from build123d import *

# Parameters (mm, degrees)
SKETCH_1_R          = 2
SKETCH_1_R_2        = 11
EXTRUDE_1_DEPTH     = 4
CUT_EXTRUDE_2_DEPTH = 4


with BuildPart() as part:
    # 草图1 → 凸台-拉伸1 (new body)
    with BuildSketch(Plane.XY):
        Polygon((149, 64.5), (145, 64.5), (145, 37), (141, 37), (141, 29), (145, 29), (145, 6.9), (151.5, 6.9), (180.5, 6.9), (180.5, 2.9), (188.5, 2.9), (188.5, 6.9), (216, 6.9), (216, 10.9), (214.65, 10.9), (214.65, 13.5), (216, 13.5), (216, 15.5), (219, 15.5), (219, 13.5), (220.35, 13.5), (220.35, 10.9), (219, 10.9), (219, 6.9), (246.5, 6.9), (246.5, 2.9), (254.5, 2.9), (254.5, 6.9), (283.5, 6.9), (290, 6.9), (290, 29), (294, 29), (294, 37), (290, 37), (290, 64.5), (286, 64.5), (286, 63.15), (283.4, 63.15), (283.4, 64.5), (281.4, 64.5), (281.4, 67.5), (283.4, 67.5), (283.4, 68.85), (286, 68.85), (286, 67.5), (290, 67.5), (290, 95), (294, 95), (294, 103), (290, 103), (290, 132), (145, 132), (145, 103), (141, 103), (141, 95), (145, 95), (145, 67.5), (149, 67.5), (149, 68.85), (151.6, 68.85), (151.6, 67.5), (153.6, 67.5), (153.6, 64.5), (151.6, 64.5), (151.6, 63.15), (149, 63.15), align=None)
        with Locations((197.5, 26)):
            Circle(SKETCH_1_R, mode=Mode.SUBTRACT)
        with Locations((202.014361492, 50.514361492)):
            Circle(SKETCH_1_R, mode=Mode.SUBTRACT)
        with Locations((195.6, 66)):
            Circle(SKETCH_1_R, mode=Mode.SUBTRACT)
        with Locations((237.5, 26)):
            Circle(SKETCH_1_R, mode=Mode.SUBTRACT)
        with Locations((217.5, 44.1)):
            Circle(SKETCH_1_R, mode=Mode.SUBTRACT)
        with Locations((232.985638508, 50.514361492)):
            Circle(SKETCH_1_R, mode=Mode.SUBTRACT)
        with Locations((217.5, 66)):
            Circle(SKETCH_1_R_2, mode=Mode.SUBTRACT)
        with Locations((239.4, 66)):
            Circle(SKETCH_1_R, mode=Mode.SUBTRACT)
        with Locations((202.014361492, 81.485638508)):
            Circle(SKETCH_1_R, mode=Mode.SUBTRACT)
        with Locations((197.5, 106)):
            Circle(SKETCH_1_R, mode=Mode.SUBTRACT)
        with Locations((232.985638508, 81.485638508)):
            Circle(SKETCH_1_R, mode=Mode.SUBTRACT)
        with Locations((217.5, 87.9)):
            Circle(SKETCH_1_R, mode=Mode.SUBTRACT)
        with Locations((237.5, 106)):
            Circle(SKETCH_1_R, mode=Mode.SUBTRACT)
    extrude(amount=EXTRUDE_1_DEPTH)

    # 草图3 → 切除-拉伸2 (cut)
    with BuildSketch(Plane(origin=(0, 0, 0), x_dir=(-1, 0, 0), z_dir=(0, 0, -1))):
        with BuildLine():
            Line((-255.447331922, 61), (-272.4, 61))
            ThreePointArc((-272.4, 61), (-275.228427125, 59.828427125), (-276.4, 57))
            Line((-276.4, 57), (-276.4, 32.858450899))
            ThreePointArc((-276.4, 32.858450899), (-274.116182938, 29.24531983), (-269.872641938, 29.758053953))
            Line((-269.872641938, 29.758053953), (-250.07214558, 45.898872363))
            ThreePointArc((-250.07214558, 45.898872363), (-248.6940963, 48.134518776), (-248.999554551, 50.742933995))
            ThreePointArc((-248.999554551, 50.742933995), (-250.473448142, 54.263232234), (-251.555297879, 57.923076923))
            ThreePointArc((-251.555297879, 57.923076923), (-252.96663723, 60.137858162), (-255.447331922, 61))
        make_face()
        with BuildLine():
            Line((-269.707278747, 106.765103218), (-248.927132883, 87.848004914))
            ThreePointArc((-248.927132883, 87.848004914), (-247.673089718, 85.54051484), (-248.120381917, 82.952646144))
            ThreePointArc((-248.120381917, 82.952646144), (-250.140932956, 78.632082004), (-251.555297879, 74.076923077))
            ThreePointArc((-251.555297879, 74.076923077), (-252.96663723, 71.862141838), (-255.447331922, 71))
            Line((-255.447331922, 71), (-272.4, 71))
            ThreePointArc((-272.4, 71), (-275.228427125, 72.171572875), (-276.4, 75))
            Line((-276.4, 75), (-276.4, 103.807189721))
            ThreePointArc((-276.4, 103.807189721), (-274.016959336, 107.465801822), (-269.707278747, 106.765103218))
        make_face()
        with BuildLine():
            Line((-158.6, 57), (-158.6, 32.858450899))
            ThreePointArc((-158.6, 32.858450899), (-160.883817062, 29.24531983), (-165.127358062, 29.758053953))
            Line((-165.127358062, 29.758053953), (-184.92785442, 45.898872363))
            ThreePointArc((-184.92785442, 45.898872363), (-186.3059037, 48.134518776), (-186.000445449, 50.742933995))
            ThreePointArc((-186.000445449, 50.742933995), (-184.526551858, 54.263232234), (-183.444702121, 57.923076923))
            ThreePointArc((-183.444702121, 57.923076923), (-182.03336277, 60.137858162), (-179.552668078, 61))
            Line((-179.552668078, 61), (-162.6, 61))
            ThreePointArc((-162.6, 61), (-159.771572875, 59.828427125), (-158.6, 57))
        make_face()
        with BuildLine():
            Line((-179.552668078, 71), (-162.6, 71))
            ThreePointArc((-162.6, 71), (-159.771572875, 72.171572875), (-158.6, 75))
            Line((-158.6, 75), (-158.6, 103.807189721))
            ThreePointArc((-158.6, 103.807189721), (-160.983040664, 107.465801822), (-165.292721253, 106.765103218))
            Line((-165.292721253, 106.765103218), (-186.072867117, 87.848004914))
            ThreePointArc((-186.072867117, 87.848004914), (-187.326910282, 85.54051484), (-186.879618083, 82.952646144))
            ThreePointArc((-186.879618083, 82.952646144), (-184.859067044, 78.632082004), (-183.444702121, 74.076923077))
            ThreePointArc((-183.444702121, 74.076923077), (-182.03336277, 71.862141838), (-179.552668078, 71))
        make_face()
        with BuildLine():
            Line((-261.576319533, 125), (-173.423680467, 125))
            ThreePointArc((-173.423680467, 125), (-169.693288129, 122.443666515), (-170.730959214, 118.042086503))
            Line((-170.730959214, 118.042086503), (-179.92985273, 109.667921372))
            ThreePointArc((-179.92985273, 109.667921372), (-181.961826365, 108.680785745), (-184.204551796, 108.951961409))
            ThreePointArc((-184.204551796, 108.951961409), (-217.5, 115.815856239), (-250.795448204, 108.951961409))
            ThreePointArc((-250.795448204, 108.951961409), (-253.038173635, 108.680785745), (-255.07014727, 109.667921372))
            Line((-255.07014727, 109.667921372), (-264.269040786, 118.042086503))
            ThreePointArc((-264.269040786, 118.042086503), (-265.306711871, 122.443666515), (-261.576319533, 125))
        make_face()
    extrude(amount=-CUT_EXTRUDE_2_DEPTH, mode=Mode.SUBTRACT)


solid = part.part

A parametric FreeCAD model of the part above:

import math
import FreeCAD as App
import Part
import Sketcher
Q = App.Units.Quantity

doc = App.newDocument("Part")
body = doc.addObject("PartDesign::Body", "Body")

# Sketch on XY plane
sketch1 = doc.addObject("Sketcher::SketchObject", "Sketch")
body.addObject(sketch1)
sketch1.AttachmentSupport = (doc.XY_Plane, [""])
sketch1.MapMode = "FlatFace"
sketch1.addGeometry([
    Part.LineSegment(App.Vector(149, 64.5, 0), App.Vector(145, 64.5, 0)),  # 0
    Part.LineSegment(App.Vector(145, 64.5, 0), App.Vector(145, 37, 0)),  # 1
    Part.LineSegment(App.Vector(145, 37, 0), App.Vector(141, 37, 0)),  # 2
    Part.LineSegment(App.Vector(141, 37, 0), App.Vector(141, 29, 0)),  # 3
    Part.LineSegment(App.Vector(141, 29, 0), App.Vector(145, 29, 0)),  # 4
    Part.LineSegment(App.Vector(145, 29, 0), App.Vector(145, 6.9, 0)),  # 5
    Part.LineSegment(App.Vector(145, 6.9, 0), App.Vector(180.5, 6.9, 0)),  # 6
    Part.LineSegment(App.Vector(180.5, 6.9, 0), App.Vector(180.5, 2.9, 0)),  # 7
    Part.LineSegment(App.Vector(180.5, 2.9, 0), App.Vector(188.5, 2.9, 0)),  # 8
    Part.LineSegment(App.Vector(188.5, 2.9, 0), App.Vector(188.5, 6.9, 0)),  # 9
    Part.LineSegment(App.Vector(188.5, 6.9, 0), App.Vector(216, 6.9, 0)),  # 10
    Part.LineSegment(App.Vector(216, 6.9, 0), App.Vector(216, 10.9, 0)),  # 11
    Part.LineSegment(App.Vector(216, 10.9, 0), App.Vector(214.7, 10.9, 0)),  # 12
    Part.LineSegment(App.Vector(214.7, 10.9, 0), App.Vector(214.7, 13.5, 0)),  # 13
    Part.LineSegment(App.Vector(214.7, 13.5, 0), App.Vector(216, 13.5, 0)),  # 14
    Part.LineSegment(App.Vector(216, 13.5, 0), App.Vector(216, 15.5, 0)),  # 15
    Part.LineSegment(App.Vector(216, 15.5, 0), App.Vector(219, 15.5, 0)),  # 16
    Part.LineSegment(App.Vector(219, 15.5, 0), App.Vector(219, 13.5, 0)),  # 17
    Part.LineSegment(App.Vector(219, 13.5, 0), App.Vector(220.3, 13.5, 0)),  # 18
    Part.LineSegment(App.Vector(220.3, 13.5, 0), App.Vector(220.3, 10.9, 0)),  # 19
    Part.LineSegment(App.Vector(220.3, 10.9, 0), App.Vector(219, 10.9, 0)),  # 20
    Part.LineSegment(App.Vector(219, 10.9, 0), App.Vector(219, 6.9, 0)),  # 21
    Part.LineSegment(App.Vector(219, 6.9, 0), App.Vector(246.5, 6.9, 0)),  # 22
    Part.LineSegment(App.Vector(246.5, 6.9, 0), App.Vector(246.5, 2.9, 0)),  # 23
    Part.LineSegment(App.Vector(246.5, 2.9, 0), App.Vector(254.5, 2.9, 0)),  # 24
    Part.LineSegment(App.Vector(254.5, 2.9, 0), App.Vector(254.5, 6.9, 0)),  # 25
    Part.LineSegment(App.Vector(254.5, 6.9, 0), App.Vector(290, 6.9, 0)),  # 26
    Part.LineSegment(App.Vector(290, 6.9, 0), App.Vector(290, 29, 0)),  # 27
    Part.LineSegment(App.Vector(290, 29, 0), App.Vector(294, 29, 0)),  # 28
    Part.LineSegment(App.Vector(294, 29, 0), App.Vector(294, 37, 0)),  # 29
    Part.LineSegment(App.Vector(294, 37, 0), App.Vector(290, 37, 0)),  # 30
    Part.LineSegment(App.Vector(290, 37, 0), App.Vector(290, 64.5, 0)),  # 31
    Part.LineSegment(App.Vector(290, 64.5, 0), App.Vector(286, 64.5, 0)),  # 32
    Part.LineSegment(App.Vector(286, 64.5, 0), App.Vector(286, 63.1, 0)),  # 33
    Part.LineSegment(App.Vector(286, 63.1, 0), App.Vector(283.4, 63.1, 0)),  # 34
    Part.LineSegment(App.Vector(283.4, 63.1, 0), App.Vector(283.4, 64.5, 0)),  # 35
    Part.LineSegment(App.Vector(283.4, 64.5, 0), App.Vector(281.4, 64.5, 0)),  # 36
    Part.LineSegment(App.Vector(281.4, 64.5, 0), App.Vector(281.4, 67.5, 0)),  # 37
    Part.LineSegment(App.Vector(281.4, 67.5, 0), App.Vector(283.4, 67.5, 0)),  # 38
    Part.LineSegment(App.Vector(283.4, 67.5, 0), App.Vector(283.4, 68.8, 0)),  # 39
    Part.LineSegment(App.Vector(283.4, 68.8, 0), App.Vector(286, 68.8, 0)),  # 40
    Part.LineSegment(App.Vector(286, 68.8, 0), App.Vector(286, 67.5, 0)),  # 41
    Part.LineSegment(App.Vector(286, 67.5, 0), App.Vector(290, 67.5, 0)),  # 42
    Part.LineSegment(App.Vector(290, 67.5, 0), App.Vector(290, 95, 0)),  # 43
    Part.LineSegment(App.Vector(290, 95, 0), App.Vector(294, 95, 0)),  # 44
    Part.LineSegment(App.Vector(294, 95, 0), App.Vector(294, 103, 0)),  # 45
    Part.LineSegment(App.Vector(294, 103, 0), App.Vector(290, 103, 0)),  # 46
    Part.LineSegment(App.Vector(290, 103, 0), App.Vector(290, 132, 0)),  # 47
    Part.LineSegment(App.Vector(290, 132, 0), App.Vector(145, 132, 0)),  # 48
    Part.LineSegment(App.Vector(145, 132, 0), App.Vector(145, 103, 0)),  # 49
    Part.LineSegment(App.Vector(145, 103, 0), App.Vector(141, 103, 0)),  # 50
    Part.LineSegment(App.Vector(141, 103, 0), App.Vector(141, 95, 0)),  # 51
    Part.LineSegment(App.Vector(141, 95, 0), App.Vector(145, 95, 0)),  # 52
    Part.LineSegment(App.Vector(145, 95, 0), App.Vector(145, 67.5, 0)),  # 53
    Part.LineSegment(App.Vector(145, 67.5, 0), App.Vector(149, 67.5, 0)),  # 54
    Part.LineSegment(App.Vector(149, 67.5, 0), App.Vector(149, 68.8, 0)),  # 55
    Part.LineSegment(App.Vector(149, 68.8, 0), App.Vector(151.6, 68.8, 0)),  # 56
    Part.LineSegment(App.Vector(151.6, 68.8, 0), App.Vector(151.6, 67.5, 0)),  # 57
    Part.LineSegment(App.Vector(151.6, 67.5, 0), App.Vector(153.6, 67.5, 0)),  # 58
    Part.LineSegment(App.Vector(153.6, 67.5, 0), App.Vector(153.6, 64.5, 0)),  # 59
    Part.LineSegment(App.Vector(153.6, 64.5, 0), App.Vector(151.6, 64.5, 0)),  # 60
    Part.LineSegment(App.Vector(151.6, 64.5, 0), App.Vector(151.6, 63.1, 0)),  # 61
    Part.LineSegment(App.Vector(151.6, 63.1, 0), App.Vector(149, 63.1, 0)),  # 62
    Part.LineSegment(App.Vector(149, 63.1, 0), App.Vector(149, 64.5, 0)),  # 63
    Part.Circle(App.Vector(197.5, 26, 0), App.Vector(0, 0, 1), 2),  # 64
    Part.Circle(App.Vector(202, 50.5, 0), App.Vector(0, 0, 1), 2),  # 65
    Part.Circle(App.Vector(217.5, 44.1, 0), App.Vector(0, 0, 1), 2),  # 66
    Part.Circle(App.Vector(237.5, 26, 0), App.Vector(0, 0, 1), 2),  # 67
    Part.Circle(App.Vector(233, 50.5, 0), App.Vector(0, 0, 1), 2),  # 68
    Part.Circle(App.Vector(195.6, 66, 0), App.Vector(0, 0, 1), 2),  # 69
    Part.Circle(App.Vector(202, 81.5, 0), App.Vector(0, 0, 1), 2),  # 70
    Part.Circle(App.Vector(197.5, 106, 0), App.Vector(0, 0, 1), 2),  # 71
    Part.Circle(App.Vector(217.5, 66, 0), App.Vector(0, 0, 1), 11),  # 72
    Part.Circle(App.Vector(239.4, 66, 0), App.Vector(0, 0, 1), 2),  # 73
    Part.Circle(App.Vector(233, 81.5, 0), App.Vector(0, 0, 1), 2),  # 74
    Part.Circle(App.Vector(217.5, 87.9, 0), App.Vector(0, 0, 1), 2),  # 75
    Part.Circle(App.Vector(237.5, 106, 0), App.Vector(0, 0, 1), 2),  # 76
], False)
sketch1.addConstraint([
    Sketcher.Constraint("Coincident", 0, 2, 1, 1),
    Sketcher.Constraint("Coincident", 1, 2, 2, 1),
    Sketcher.Constraint("Coincident", 2, 2, 3, 1),
    Sketcher.Constraint("Coincident", 3, 2, 4, 1),
    Sketcher.Constraint("Coincident", 4, 2, 5, 1),
    Sketcher.Constraint("Coincident", 5, 2, 6, 1),
    Sketcher.Constraint("Coincident", 6, 2, 7, 1),
    Sketcher.Constraint("Coincident", 7, 2, 8, 1),
    Sketcher.Constraint("Coincident", 8, 2, 9, 1),
    Sketcher.Constraint("Coincident", 9, 2, 10, 1),
    Sketcher.Constraint("Coincident", 10, 2, 11, 1),
    Sketcher.Constraint("Coincident", 11, 2, 12, 1),
    Sketcher.Constraint("Coincident", 12, 2, 13, 1),
    Sketcher.Constraint("Coincident", 13, 2, 14, 1),
    Sketcher.Constraint("Coincident", 14, 2, 15, 1),
    Sketcher.Constraint("Coincident", 15, 2, 16, 1),
    Sketcher.Constraint("Coincident", 16, 2, 17, 1),
    Sketcher.Constraint("Coincident", 17, 2, 18, 1),
    Sketcher.Constraint("Coincident", 18, 2, 19, 1),
    Sketcher.Constraint("Coincident", 19, 2, 20, 1),
    Sketcher.Constraint("Coincident", 20, 2, 21, 1),
    Sketcher.Constraint("Coincident", 21, 2, 22, 1),
    Sketcher.Constraint("Coincident", 22, 2, 23, 1),
    Sketcher.Constraint("Coincident", 23, 2, 24, 1),
    Sketcher.Constraint("Coincident", 24, 2, 25, 1),
    Sketcher.Constraint("Coincident", 25, 2, 26, 1),
    Sketcher.Constraint("Coincident", 26, 2, 27, 1),
    Sketcher.Constraint("Coincident", 27, 2, 28, 1),
    Sketcher.Constraint("Coincident", 28, 2, 29, 1),
    Sketcher.Constraint("Coincident", 29, 2, 30, 1),
    Sketcher.Constraint("Coincident", 30, 2, 31, 1),
    Sketcher.Constraint("Coincident", 31, 2, 32, 1),
    Sketcher.Constraint("Coincident", 32, 2, 33, 1),
    Sketcher.Constraint("Coincident", 33, 2, 34, 1),
    Sketcher.Constraint("Coincident", 34, 2, 35, 1),
    Sketcher.Constraint("Coincident", 35, 2, 36, 1),
    Sketcher.Constraint("Coincident", 36, 2, 37, 1),
    Sketcher.Constraint("Coincident", 37, 2, 38, 1),
    Sketcher.Constraint("Coincident", 38, 2, 39, 1),
    Sketcher.Constraint("Coincident", 39, 2, 40, 1),
    Sketcher.Constraint("Coincident", 40, 2, 41, 1),
    Sketcher.Constraint("Coincident", 41, 2, 42, 1),
    Sketcher.Constraint("Coincident", 42, 2, 43, 1),
    Sketcher.Constraint("Coincident", 43, 2, 44, 1),
    Sketcher.Constraint("Coincident", 44, 2, 45, 1),
    Sketcher.Constraint("Coincident", 45, 2, 46, 1),
    Sketcher.Constraint("Coincident", 46, 2, 47, 1),
    Sketcher.Constraint("Coincident", 47, 2, 48, 1),
    Sketcher.Constraint("Coincident", 48, 2, 49, 1),
    Sketcher.Constraint("Coincident", 49, 2, 50, 1),
    Sketcher.Constraint("Coincident", 50, 2, 51, 1),
    Sketcher.Constraint("Coincident", 51, 2, 52, 1),
    Sketcher.Constraint("Coincident", 52, 2, 53, 1),
    Sketcher.Constraint("Coincident", 53, 2, 54, 1),
    Sketcher.Constraint("Coincident", 54, 2, 55, 1),
    Sketcher.Constraint("Coincident", 55, 2, 56, 1),
    Sketcher.Constraint("Coincident", 56, 2, 57, 1),
    Sketcher.Constraint("Coincident", 57, 2, 58, 1),
    Sketcher.Constraint("Coincident", 58, 2, 59, 1),
    Sketcher.Constraint("Coincident", 59, 2, 60, 1),
    Sketcher.Constraint("Coincident", 60, 2, 61, 1),
    Sketcher.Constraint("Coincident", 61, 2, 62, 1),
    Sketcher.Constraint("Coincident", 62, 2, 63, 1),
    Sketcher.Constraint("Coincident", 63, 2, 0, 1),
    Sketcher.Constraint("Horizontal", 0),
    Sketcher.Constraint("Vertical", 1),
    Sketcher.Constraint("Horizontal", 2),
    Sketcher.Constraint("Vertical", 3),
    Sketcher.Constraint("Horizontal", 4),
    Sketcher.Constraint("Vertical", 5),
    Sketcher.Constraint("Horizontal", 6),
    Sketcher.Constraint("Vertical", 7),
    Sketcher.Constraint("Horizontal", 8),
    Sketcher.Constraint("Vertical", 9),
    Sketcher.Constraint("Horizontal", 10),
    Sketcher.Constraint("Vertical", 11),
    Sketcher.Constraint("Horizontal", 12),
    Sketcher.Constraint("Vertical", 13),
    Sketcher.Constraint("Horizontal", 14),
    Sketcher.Constraint("Vertical", 15),
    Sketcher.Constraint("Horizontal", 16),
    Sketcher.Constraint("Vertical", 17),
    Sketcher.Constraint("Horizontal", 18),
    Sketcher.Constraint("Vertical", 19),
    Sketcher.Constraint("Horizontal", 20),
    Sketcher.Constraint("Vertical", 21),
    Sketcher.Constraint("Horizontal", 22),
    Sketcher.Constraint("Vertical", 23),
    Sketcher.Constraint("Horizontal", 24),
    Sketcher.Constraint("Vertical", 25),
    Sketcher.Constraint("Horizontal", 26),
    Sketcher.Constraint("Vertical", 27),
    Sketcher.Constraint("Horizontal", 28),
    Sketcher.Constraint("Vertical", 29),
    Sketcher.Constraint("Horizontal", 30),
    Sketcher.Constraint("Vertical", 31),
    Sketcher.Constraint("Horizontal", 32),
    Sketcher.Constraint("Vertical", 33),
    Sketcher.Constraint("Horizontal", 34),
    Sketcher.Constraint("Vertical", 35),
    Sketcher.Constraint("Horizontal", 36),
    Sketcher.Constraint("Vertical", 37),
    Sketcher.Constraint("Horizontal", 38),
    Sketcher.Constraint("Vertical", 39),
    Sketcher.Constraint("Horizontal", 40),
    Sketcher.Constraint("Vertical", 41),
    Sketcher.Constraint("Horizontal", 42),
    Sketcher.Constraint("Vertical", 43),
    Sketcher.Constraint("Horizontal", 44),
    Sketcher.Constraint("Vertical", 45),
    Sketcher.Constraint("Horizontal", 46),
    Sketcher.Constraint("Vertical", 47),
    Sketcher.Constraint("Horizontal", 48),
    Sketcher.Constraint("Vertical", 49),
    Sketcher.Constraint("Horizontal", 50),
    Sketcher.Constraint("Vertical", 51),
    Sketcher.Constraint("Horizontal", 52),
    Sketcher.Constraint("Vertical", 53),
    Sketcher.Constraint("Horizontal", 54),
    Sketcher.Constraint("Vertical", 55),
    Sketcher.Constraint("Horizontal", 56),
    Sketcher.Constraint("Vertical", 57),
    Sketcher.Constraint("Horizontal", 58),
    Sketcher.Constraint("Vertical", 59),
    Sketcher.Constraint("Horizontal", 60),
    Sketcher.Constraint("Vertical", 61),
    Sketcher.Constraint("Horizontal", 62),
    Sketcher.Constraint("Vertical", 63),
    Sketcher.Constraint("Equal", 64, 65),
    Sketcher.Constraint("Equal", 65, 66),
    Sketcher.Constraint("Equal", 66, 67),
    Sketcher.Constraint("Equal", 67, 68),
    Sketcher.Constraint("Equal", 68, 69),
    Sketcher.Constraint("Equal", 69, 70),
    Sketcher.Constraint("Equal", 70, 71),
    Sketcher.Constraint("Equal", 71, 73),
    Sketcher.Constraint("Equal", 73, 74),
    Sketcher.Constraint("Equal", 74, 75),
    Sketcher.Constraint("Equal", 75, 76),
    Sketcher.Constraint("Horizontal", 64, 3, 67, 3),
    Sketcher.Constraint("Horizontal", 65, 3, 68, 3),
    Sketcher.Constraint("Horizontal", 69, 3, 72, 3),
    Sketcher.Constraint("Horizontal", 72, 3, 73, 3),
    Sketcher.Constraint("Horizontal", 70, 3, 74, 3),
    Sketcher.Constraint("Horizontal", 71, 3, 76, 3),
    Sketcher.Constraint("Horizontal", 6, 2, 9, 2),
    Sketcher.Constraint("Horizontal", 14, 2, 17, 2),
    Sketcher.Constraint("Horizontal", 12, 2, 19, 2),
    Sketcher.Constraint("Horizontal", 10, 2, 21, 2),
    Sketcher.Constraint("Horizontal", 8, 2, 23, 2),
    Sketcher.Constraint("Horizontal", 22, 2, 25, 2),
    Sketcher.Constraint("Horizontal", 4, 2, 27, 2),
    Sketcher.Constraint("Horizontal", 2, 2, 29, 2),
    Sketcher.Constraint("Horizontal", 0, 2, 31, 2),
    Sketcher.Constraint("Horizontal", 32, 2, 35, 2),
    Sketcher.Constraint("Horizontal", 38, 2, 41, 2),
    Sketcher.Constraint("Horizontal", 46, 2, 49, 2),
    Sketcher.Constraint("Horizontal", 44, 2, 51, 2),
    Sketcher.Constraint("Horizontal", 42, 2, 53, 2),
    Sketcher.Constraint("Horizontal", 40, 2, 55, 2),
    Sketcher.Constraint("Horizontal", 54, 2, 57, 2),
    Sketcher.Constraint("Horizontal", 36, 2, 59, 2),
    Sketcher.Constraint("Horizontal", 34, 2, 61, 2),
    Sketcher.Constraint("Vertical", 65, 3, 70, 3),
    Sketcher.Constraint("Vertical", 64, 3, 71, 3),
    Sketcher.Constraint("Vertical", 66, 3, 72, 3),
    Sketcher.Constraint("Vertical", 68, 3, 74, 3),
    Sketcher.Constraint("Vertical", 72, 3, 75, 3),
    Sketcher.Constraint("Vertical", 67, 3, 76, 3),
    Sketcher.Constraint("Vertical", 1, 2, 4, 2),
    Sketcher.Constraint("Vertical", 11, 2, 14, 2),
    Sketcher.Constraint("Vertical", 17, 2, 20, 2),
    Sketcher.Constraint("Vertical", 27, 2, 30, 2),
    Sketcher.Constraint("Vertical", 35, 2, 38, 2),
    Sketcher.Constraint("Vertical", 33, 2, 40, 2),
    Sketcher.Constraint("Vertical", 31, 2, 42, 2),
    Sketcher.Constraint("Vertical", 29, 2, 44, 2),
    Sketcher.Constraint("Vertical", 43, 2, 46, 2),
    Sketcher.Constraint("Vertical", 5, 2, 48, 2),
    Sketcher.Constraint("Vertical", 3, 2, 50, 2),
    Sketcher.Constraint("Vertical", 49, 2, 52, 2),
    Sketcher.Constraint("Vertical", 57, 2, 60, 2),
    Sketcher.Constraint("Vertical", 55, 2, 62, 2),
    Sketcher.Constraint("Equal", 0, 2),
    Sketcher.Constraint("Equal", 14, 18),
    Sketcher.Constraint("Equal", 10, 22),
    Sketcher.Constraint("Equal", 8, 24),
    Sketcher.Constraint("Equal", 6, 26),
    Sketcher.Constraint("Equal", 4, 28),
    Sketcher.Constraint("Equal", 30, 32),
    Sketcher.Constraint("Equal", 40, 56),
    Sketcher.Constraint("Equal", 38, 58),
    Sketcher.Constraint("Equal", 22, 1),
    Sketcher.Constraint("Equal", 24, 3),
    Sketcher.Constraint("Equal", 54, 7),
    Sketcher.Constraint("Equal", 9, 11),
    Sketcher.Constraint("Equal", 62, 13),
    Sketcher.Constraint("Equal", 60, 15),
    Sketcher.Constraint("Equal", 20, 33),
    Sketcher.Constraint("Equal", 16, 37),
    Sketcher.Constraint("Equal", 35, 39),
    Sketcher.Constraint("Equal", 31, 43),
    Sketcher.Constraint("Equal", 29, 45),
    Sketcher.Constraint("Diameter", 64, Q("4 mm")),
    Sketcher.Constraint("Diameter", 72, Q("22 mm")),
    Sketcher.Constraint("DistanceX", 0, 2, 0, 1, Q("4 mm")),
    Sketcher.Constraint("DistanceX", 8, 1, 8, 2, Q("8 mm")),
    Sketcher.Constraint("DistanceX", 16, 1, 16, 2, Q("3 mm")),
    Sketcher.Constraint("DistanceX", 36, 2, 36, 1, Q("2 mm")),
    Sketcher.Constraint("DistanceX", 48, 2, 48, 1, Q("145 mm")),
    Sketcher.Constraint("DistanceY", 47, 1, 47, 2, Q("29 mm")),
    Sketcher.Constraint("DistanceX", 6, 1, 6, 2, Q("35.5 mm")),
    Sketcher.Constraint("DistanceX", 34, 2, 34, 1, Q("2.6 mm")),
    Sketcher.Constraint("DistanceY", 5, 2, 5, 1, Q("22.1 mm")),
    Sketcher.Constraint("DistanceY", -1, 1, 64, 3, Q("26 mm")),
    Sketcher.Constraint("DistanceY", -1, 1, 69, 3, Q("66 mm")),
    Sketcher.Constraint("DistanceY", -1, 1, 71, 3, Q("106 mm")),
    Sketcher.Constraint("DistanceX", -1, 1, 0, 2, Q("145 mm")),
    Sketcher.Constraint("DistanceY", -1, 1, 1, 2, Q("37 mm")),
    Sketcher.Constraint("DistanceX", 12, 2, 12, 1, Q("1.35 mm")),
    Sketcher.Constraint("DistanceX", -1, 1, 64, 3, Q("197.5 mm")),
    Sketcher.Constraint("DistanceX", -1, 1, 66, 3, Q("217.5 mm")),
    Sketcher.Constraint("DistanceY", -1, 1, 66, 3, Q("44.1 mm")),
    Sketcher.Constraint("DistanceX", -1, 1, 67, 3, Q("237.5 mm")),
    Sketcher.Constraint("DistanceX", -1, 1, 69, 3, Q("195.6 mm")),
    Sketcher.Constraint("DistanceX", -1, 1, 73, 3, Q("239.4 mm")),
    Sketcher.Constraint("DistanceY", -1, 1, 75, 3, Q("87.9 mm")),
    Sketcher.Constraint("DistanceX", -1, 1, 65, 3, Q("202.014361 mm")),
    Sketcher.Constraint("DistanceY", -1, 1, 65, 3, Q("50.514361 mm")),
    Sketcher.Constraint("DistanceX", -1, 1, 68, 3, Q("232.985639 mm")),
    Sketcher.Constraint("DistanceY", -1, 1, 70, 3, Q("81.485639 mm")),
])
pad1 = doc.addObject("PartDesign::Pad", "Pad")
body.addObject(pad1)
pad1.Profile = sketch1
pad1.Length = 4

# Sketch on XY plane
sketch2 = doc.addObject("Sketcher::SketchObject", "Sketch001")
body.addObject(sketch2)
sketch2.AttachmentSupport = (doc.XY_Plane, [""])
sketch2.MapMode = "FlatFace"
sketch2.addGeometry([
    Part.LineSegment(App.Vector(255.4, 61, 0), App.Vector(272.4, 61, 0)),  # 0
    Part.ArcOfCircle(Part.Circle(App.Vector(272.4, 57, 0), App.Vector(0, 0, 1), 4), math.radians(0), math.radians(90)),  # 1
    Part.LineSegment(App.Vector(276.4, 57, 0), App.Vector(276.4, 32.9, 0)),  # 2
    Part.ArcOfCircle(Part.Circle(App.Vector(272.4, 32.9, 0), App.Vector(0, 0, 1), 4), math.radians(-129), math.radians(0)),  # 3
    Part.LineSegment(App.Vector(269.9, 29.8, 0), App.Vector(250.1, 45.9, 0)),  # 4
    Part.ArcOfCircle(Part.Circle(App.Vector(252.6, 49, 0), App.Vector(0, 0, 1), 4), math.radians(154), math.radians(231)),  # 5
    Part.ArcOfCircle(Part.Circle(App.Vector(217.5, 66, 0), App.Vector(0, 0, 1), 35), math.radians(-25.84), math.radians(-13.34)),  # 6
    Part.ArcOfCircle(Part.Circle(App.Vector(255.4, 57, 0), App.Vector(0, 0, 1), 4), math.radians(90), math.radians(167)),  # 7
    Part.LineSegment(App.Vector(248.9, 87.8, 0), App.Vector(269.7, 106.8, 0)),  # 8
    Part.ArcOfCircle(Part.Circle(App.Vector(272.4, 103.8, 0), App.Vector(0, 0, 1), 4), math.radians(0), math.radians(132)),  # 9
    Part.LineSegment(App.Vector(276.4, 103.8, 0), App.Vector(276.4, 75, 0)),  # 10
    Part.ArcOfCircle(Part.Circle(App.Vector(272.4, 75, 0), App.Vector(0, 0, 1), 4), math.radians(-90), math.radians(0)),  # 11
    Part.LineSegment(App.Vector(272.4, 71, 0), App.Vector(255.4, 71, 0)),  # 12
    Part.ArcOfCircle(Part.Circle(App.Vector(255.4, 75, 0), App.Vector(0, 0, 1), 4), math.radians(-167), math.radians(-90)),  # 13
    Part.ArcOfCircle(Part.Circle(App.Vector(217.5, 66, 0), App.Vector(0, 0, 1), 35), math.radians(13.34), math.radians(28.97)),  # 14
    Part.ArcOfCircle(Part.Circle(App.Vector(251.6, 84.9, 0), App.Vector(0, 0, 1), 4), math.radians(132), math.radians(209)),  # 15
    Part.LineSegment(App.Vector(158.6, 32.9, 0), App.Vector(158.6, 57, 0)),  # 16
    Part.ArcOfCircle(Part.Circle(App.Vector(162.6, 57, 0), App.Vector(0, 0, 1), 4), math.radians(90), math.radians(180)),  # 17
    Part.LineSegment(App.Vector(162.6, 61, 0), App.Vector(179.6, 61, 0)),  # 18
    Part.ArcOfCircle(Part.Circle(App.Vector(179.6, 57, 0), App.Vector(0, 0, 1), 4), math.radians(13), math.radians(90)),  # 19
    Part.ArcOfCircle(Part.Circle(App.Vector(217.5, 66, 0), App.Vector(0, 0, 1), 35), math.radians(-166.66), math.radians(-154.16)),  # 20
    Part.ArcOfCircle(Part.Circle(App.Vector(182.4, 49, 0), App.Vector(0, 0, 1), 4), math.radians(-51), math.radians(26)),  # 21
    Part.LineSegment(App.Vector(184.9, 45.9, 0), App.Vector(165.1, 29.8, 0)),  # 22
    Part.ArcOfCircle(Part.Circle(App.Vector(162.6, 32.9, 0), App.Vector(0, 0, 1), 4), math.radians(180), math.radians(309)),  # 23
    Part.LineSegment(App.Vector(179.6, 71, 0), App.Vector(162.6, 71, 0)),  # 24
    Part.ArcOfCircle(Part.Circle(App.Vector(162.6, 75, 0), App.Vector(0, 0, 1), 4), math.radians(180), math.radians(270)),  # 25
    Part.LineSegment(App.Vector(158.6, 75, 0), App.Vector(158.6, 103.8, 0)),  # 26
    Part.ArcOfCircle(Part.Circle(App.Vector(162.6, 103.8, 0), App.Vector(0, 0, 1), 4), math.radians(48), math.radians(180)),  # 27
    Part.LineSegment(App.Vector(165.3, 106.8, 0), App.Vector(186.1, 87.8, 0)),  # 28
    Part.ArcOfCircle(Part.Circle(App.Vector(183.4, 84.9, 0), App.Vector(0, 0, 1), 4), math.radians(-29), math.radians(48)),  # 29
    Part.ArcOfCircle(Part.Circle(App.Vector(217.5, 66, 0), App.Vector(0, 0, 1), 35), math.radians(151.03), math.radians(166.66)),  # 30
    Part.ArcOfCircle(Part.Circle(App.Vector(179.6, 75, 0), App.Vector(0, 0, 1), 4), math.radians(-90), math.radians(-13)),  # 31
    Part.LineSegment(App.Vector(173.4, 125, 0), App.Vector(261.6, 125, 0)),  # 32
    Part.ArcOfCircle(Part.Circle(App.Vector(261.6, 121, 0), App.Vector(0, 0, 1), 4), math.radians(-48), math.radians(90)),  # 33
    Part.LineSegment(App.Vector(264.3, 118, 0), App.Vector(255.1, 109.7, 0)),  # 34
    Part.ArcOfCircle(Part.Circle(App.Vector(252.4, 112.6, 0), App.Vector(0, 0, 1), 4), math.radians(-113), math.radians(-48)),  # 35
    Part.ArcOfCircle(Part.Circle(App.Vector(217.5, 31.6, 0), App.Vector(0, 0, 1), 84.2), math.radians(67), math.radians(113)),  # 36
    Part.ArcOfCircle(Part.Circle(App.Vector(182.6, 112.6, 0), App.Vector(0, 0, 1), 4), math.radians(-132), math.radians(-67)),  # 37
    Part.LineSegment(App.Vector(179.9, 109.7, 0), App.Vector(170.7, 118, 0)),  # 38
    Part.ArcOfCircle(Part.Circle(App.Vector(173.4, 121, 0), App.Vector(0, 0, 1), 4), math.radians(90), math.radians(228)),  # 39
], False)
sketch2.addConstraint([
    Sketcher.Constraint("Tangent", 0, 2, 1, 2),
    Sketcher.Constraint("Tangent", 1, 1, 2, 1),
    Sketcher.Constraint("Tangent", 2, 2, 3, 2),
    Sketcher.Constraint("Tangent", 3, 1, 4, 1),
    Sketcher.Constraint("Tangent", 4, 2, 5, 2),
    Sketcher.Constraint("Tangent", 5, 1, 6, 1),
    Sketcher.Constraint("Tangent", 6, 2, 7, 2),
    Sketcher.Constraint("Tangent", 7, 1, 0, 1),
    Sketcher.Constraint("Tangent", 8, 2, 9, 2),
    Sketcher.Constraint("Tangent", 9, 1, 10, 1),
    Sketcher.Constraint("Tangent", 10, 2, 11, 2),
    Sketcher.Constraint("Tangent", 11, 1, 12, 1),
    Sketcher.Constraint("Tangent", 12, 2, 13, 2),
    Sketcher.Constraint("Tangent", 13, 1, 14, 1),
    Sketcher.Constraint("Tangent", 14, 2, 15, 2),
    Sketcher.Constraint("Tangent", 15, 1, 8, 1),
    Sketcher.Constraint("Tangent", 16, 2, 17, 2),
    Sketcher.Constraint("Tangent", 17, 1, 18, 1),
    Sketcher.Constraint("Tangent", 18, 2, 19, 2),
    Sketcher.Constraint("Tangent", 19, 1, 20, 1),
    Sketcher.Constraint("Tangent", 20, 2, 21, 2),
    Sketcher.Constraint("Tangent", 21, 1, 22, 1),
    Sketcher.Constraint("Tangent", 22, 2, 23, 2),
    Sketcher.Constraint("Tangent", 23, 1, 16, 1),
    Sketcher.Constraint("Tangent", 24, 2, 25, 2),
    Sketcher.Constraint("Tangent", 25, 1, 26, 1),
    Sketcher.Constraint("Tangent", 26, 2, 27, 2),
    Sketcher.Constraint("Tangent", 27, 1, 28, 1),
    Sketcher.Constraint("Tangent", 28, 2, 29, 2),
    Sketcher.Constraint("Tangent", 29, 1, 30, 1),
    Sketcher.Constraint("Tangent", 30, 2, 31, 2),
    Sketcher.Constraint("Tangent", 31, 1, 24, 1),
    Sketcher.Constraint("Tangent", 32, 2, 33, 2),
    Sketcher.Constraint("Tangent", 33, 1, 34, 1),
    Sketcher.Constraint("Tangent", 34, 2, 35, 2),
    Sketcher.Constraint("Tangent", 35, 1, 36, 1),
    Sketcher.Constraint("Tangent", 36, 2, 37, 2),
    Sketcher.Constraint("Tangent", 37, 1, 38, 1),
    Sketcher.Constraint("Tangent", 38, 2, 39, 2),
    Sketcher.Constraint("Tangent", 39, 1, 32, 1),
    Sketcher.Constraint("Horizontal", 0),
    Sketcher.Constraint("Vertical", 2),
    Sketcher.Constraint("Vertical", 10),
    Sketcher.Constraint("Horizontal", 12),
    Sketcher.Constraint("Vertical", 16),
    Sketcher.Constraint("Horizontal", 18),
    Sketcher.Constraint("Horizontal", 24),
    Sketcher.Constraint("Vertical", 26),
    Sketcher.Constraint("Horizontal", 32),
    Sketcher.Constraint("Coincident", 14, 3, 6, 3),
    Sketcher.Constraint("Coincident", 20, 3, 6, 3),
    Sketcher.Constraint("Coincident", 30, 3, 6, 3),
    Sketcher.Constraint("Equal", 1, 3),
    Sketcher.Constraint("Equal", 3, 5),
    Sketcher.Constraint("Equal", 5, 7),
    Sketcher.Constraint("Equal", 7, 9),
    Sketcher.Constraint("Equal", 9, 11),
    Sketcher.Constraint("Equal", 11, 13),
    Sketcher.Constraint("Equal", 6, 14),
    Sketcher.Constraint("Equal", 13, 15),
    Sketcher.Constraint("Equal", 15, 17),
    Sketcher.Constraint("Equal", 17, 19),
    Sketcher.Constraint("Equal", 14, 20),
    Sketcher.Constraint("Equal", 19, 21),
    Sketcher.Constraint("Equal", 21, 23),
    Sketcher.Constraint("Equal", 23, 25),
    Sketcher.Constraint("Equal", 25, 27),
    Sketcher.Constraint("Equal", 27, 29),
    Sketcher.Constraint("Equal", 20, 30),
    Sketcher.Constraint("Equal", 29, 31),
    Sketcher.Constraint("Equal", 31, 33),
    Sketcher.Constraint("Equal", 33, 35),
    Sketcher.Constraint("Equal", 35, 37),
    Sketcher.Constraint("Equal", 37, 39),
    Sketcher.Constraint("Parallel", 8, 34),
    Sketcher.Constraint("Parallel", 28, 38),
    Sketcher.Constraint("Horizontal", 7, 3, 17, 3),
    Sketcher.Constraint("Horizontal", 5, 3, 21, 3),
    Sketcher.Constraint("Horizontal", 3, 3, 23, 3),
    Sketcher.Constraint("Horizontal", 13, 3, 25, 3),
    Sketcher.Constraint("Horizontal", 9, 3, 27, 3),
    Sketcher.Constraint("Horizontal", 15, 3, 29, 3),
    Sketcher.Constraint("Horizontal", 35, 3, 37, 3),
    Sketcher.Constraint("Horizontal", 4, 2, 21, 1),
    Sketcher.Constraint("Horizontal", 8, 2, 27, 1),
    Sketcher.Constraint("Vertical", 3, 3, 9, 3),
    Sketcher.Constraint("Vertical", 7, 3, 13, 3),
    Sketcher.Constraint("Vertical", 30, 3, 36, 3),
    Sketcher.Constraint("Radius", 1, Q("4 mm")),
    Sketcher.Constraint("Radius", 6, Q("35 mm")),
    Sketcher.Constraint("DistanceY", -1, 1, 1, 3, Q("57 mm")),
    Sketcher.Constraint("DistanceY", -1, 1, 6, 3, Q("66 mm")),
    Sketcher.Constraint("DistanceY", -1, 1, 33, 3, Q("121 mm")),
    Sketcher.Constraint("DistanceX", -1, 1, 1, 3, Q("272.4 mm")),
    Sketcher.Constraint("DistanceX", -1, 1, 6, 3, Q("217.5 mm")),
    Sketcher.Constraint("Radius", 36, Q("84.18689 mm")),
    Sketcher.Constraint("DistanceX", 32, 1, 32, 2, Q("88.152639 mm")),
    Sketcher.Constraint("DistanceY", 2, 2, 2, 1, Q("24.141549 mm")),
    Sketcher.Constraint("DistanceY", 10, 2, 10, 1, Q("28.80719 mm")),
    Sketcher.Constraint("DistanceY", -1, 1, 5, 3, Q("48.999269 mm")),
    Sketcher.Constraint("DistanceY", -1, 1, 15, 3, Q("84.890091 mm")),
    Sketcher.Constraint("DistanceY", -1, 1, 34, 2, Q("109.667921 mm")),
])
pocket1 = doc.addObject("PartDesign::Pocket", "Pocket")
body.addObject(pocket1)
pocket1.Profile = sketch2
pocket1.Length = 4
pocket1.Reversed = True

doc.recompute()
